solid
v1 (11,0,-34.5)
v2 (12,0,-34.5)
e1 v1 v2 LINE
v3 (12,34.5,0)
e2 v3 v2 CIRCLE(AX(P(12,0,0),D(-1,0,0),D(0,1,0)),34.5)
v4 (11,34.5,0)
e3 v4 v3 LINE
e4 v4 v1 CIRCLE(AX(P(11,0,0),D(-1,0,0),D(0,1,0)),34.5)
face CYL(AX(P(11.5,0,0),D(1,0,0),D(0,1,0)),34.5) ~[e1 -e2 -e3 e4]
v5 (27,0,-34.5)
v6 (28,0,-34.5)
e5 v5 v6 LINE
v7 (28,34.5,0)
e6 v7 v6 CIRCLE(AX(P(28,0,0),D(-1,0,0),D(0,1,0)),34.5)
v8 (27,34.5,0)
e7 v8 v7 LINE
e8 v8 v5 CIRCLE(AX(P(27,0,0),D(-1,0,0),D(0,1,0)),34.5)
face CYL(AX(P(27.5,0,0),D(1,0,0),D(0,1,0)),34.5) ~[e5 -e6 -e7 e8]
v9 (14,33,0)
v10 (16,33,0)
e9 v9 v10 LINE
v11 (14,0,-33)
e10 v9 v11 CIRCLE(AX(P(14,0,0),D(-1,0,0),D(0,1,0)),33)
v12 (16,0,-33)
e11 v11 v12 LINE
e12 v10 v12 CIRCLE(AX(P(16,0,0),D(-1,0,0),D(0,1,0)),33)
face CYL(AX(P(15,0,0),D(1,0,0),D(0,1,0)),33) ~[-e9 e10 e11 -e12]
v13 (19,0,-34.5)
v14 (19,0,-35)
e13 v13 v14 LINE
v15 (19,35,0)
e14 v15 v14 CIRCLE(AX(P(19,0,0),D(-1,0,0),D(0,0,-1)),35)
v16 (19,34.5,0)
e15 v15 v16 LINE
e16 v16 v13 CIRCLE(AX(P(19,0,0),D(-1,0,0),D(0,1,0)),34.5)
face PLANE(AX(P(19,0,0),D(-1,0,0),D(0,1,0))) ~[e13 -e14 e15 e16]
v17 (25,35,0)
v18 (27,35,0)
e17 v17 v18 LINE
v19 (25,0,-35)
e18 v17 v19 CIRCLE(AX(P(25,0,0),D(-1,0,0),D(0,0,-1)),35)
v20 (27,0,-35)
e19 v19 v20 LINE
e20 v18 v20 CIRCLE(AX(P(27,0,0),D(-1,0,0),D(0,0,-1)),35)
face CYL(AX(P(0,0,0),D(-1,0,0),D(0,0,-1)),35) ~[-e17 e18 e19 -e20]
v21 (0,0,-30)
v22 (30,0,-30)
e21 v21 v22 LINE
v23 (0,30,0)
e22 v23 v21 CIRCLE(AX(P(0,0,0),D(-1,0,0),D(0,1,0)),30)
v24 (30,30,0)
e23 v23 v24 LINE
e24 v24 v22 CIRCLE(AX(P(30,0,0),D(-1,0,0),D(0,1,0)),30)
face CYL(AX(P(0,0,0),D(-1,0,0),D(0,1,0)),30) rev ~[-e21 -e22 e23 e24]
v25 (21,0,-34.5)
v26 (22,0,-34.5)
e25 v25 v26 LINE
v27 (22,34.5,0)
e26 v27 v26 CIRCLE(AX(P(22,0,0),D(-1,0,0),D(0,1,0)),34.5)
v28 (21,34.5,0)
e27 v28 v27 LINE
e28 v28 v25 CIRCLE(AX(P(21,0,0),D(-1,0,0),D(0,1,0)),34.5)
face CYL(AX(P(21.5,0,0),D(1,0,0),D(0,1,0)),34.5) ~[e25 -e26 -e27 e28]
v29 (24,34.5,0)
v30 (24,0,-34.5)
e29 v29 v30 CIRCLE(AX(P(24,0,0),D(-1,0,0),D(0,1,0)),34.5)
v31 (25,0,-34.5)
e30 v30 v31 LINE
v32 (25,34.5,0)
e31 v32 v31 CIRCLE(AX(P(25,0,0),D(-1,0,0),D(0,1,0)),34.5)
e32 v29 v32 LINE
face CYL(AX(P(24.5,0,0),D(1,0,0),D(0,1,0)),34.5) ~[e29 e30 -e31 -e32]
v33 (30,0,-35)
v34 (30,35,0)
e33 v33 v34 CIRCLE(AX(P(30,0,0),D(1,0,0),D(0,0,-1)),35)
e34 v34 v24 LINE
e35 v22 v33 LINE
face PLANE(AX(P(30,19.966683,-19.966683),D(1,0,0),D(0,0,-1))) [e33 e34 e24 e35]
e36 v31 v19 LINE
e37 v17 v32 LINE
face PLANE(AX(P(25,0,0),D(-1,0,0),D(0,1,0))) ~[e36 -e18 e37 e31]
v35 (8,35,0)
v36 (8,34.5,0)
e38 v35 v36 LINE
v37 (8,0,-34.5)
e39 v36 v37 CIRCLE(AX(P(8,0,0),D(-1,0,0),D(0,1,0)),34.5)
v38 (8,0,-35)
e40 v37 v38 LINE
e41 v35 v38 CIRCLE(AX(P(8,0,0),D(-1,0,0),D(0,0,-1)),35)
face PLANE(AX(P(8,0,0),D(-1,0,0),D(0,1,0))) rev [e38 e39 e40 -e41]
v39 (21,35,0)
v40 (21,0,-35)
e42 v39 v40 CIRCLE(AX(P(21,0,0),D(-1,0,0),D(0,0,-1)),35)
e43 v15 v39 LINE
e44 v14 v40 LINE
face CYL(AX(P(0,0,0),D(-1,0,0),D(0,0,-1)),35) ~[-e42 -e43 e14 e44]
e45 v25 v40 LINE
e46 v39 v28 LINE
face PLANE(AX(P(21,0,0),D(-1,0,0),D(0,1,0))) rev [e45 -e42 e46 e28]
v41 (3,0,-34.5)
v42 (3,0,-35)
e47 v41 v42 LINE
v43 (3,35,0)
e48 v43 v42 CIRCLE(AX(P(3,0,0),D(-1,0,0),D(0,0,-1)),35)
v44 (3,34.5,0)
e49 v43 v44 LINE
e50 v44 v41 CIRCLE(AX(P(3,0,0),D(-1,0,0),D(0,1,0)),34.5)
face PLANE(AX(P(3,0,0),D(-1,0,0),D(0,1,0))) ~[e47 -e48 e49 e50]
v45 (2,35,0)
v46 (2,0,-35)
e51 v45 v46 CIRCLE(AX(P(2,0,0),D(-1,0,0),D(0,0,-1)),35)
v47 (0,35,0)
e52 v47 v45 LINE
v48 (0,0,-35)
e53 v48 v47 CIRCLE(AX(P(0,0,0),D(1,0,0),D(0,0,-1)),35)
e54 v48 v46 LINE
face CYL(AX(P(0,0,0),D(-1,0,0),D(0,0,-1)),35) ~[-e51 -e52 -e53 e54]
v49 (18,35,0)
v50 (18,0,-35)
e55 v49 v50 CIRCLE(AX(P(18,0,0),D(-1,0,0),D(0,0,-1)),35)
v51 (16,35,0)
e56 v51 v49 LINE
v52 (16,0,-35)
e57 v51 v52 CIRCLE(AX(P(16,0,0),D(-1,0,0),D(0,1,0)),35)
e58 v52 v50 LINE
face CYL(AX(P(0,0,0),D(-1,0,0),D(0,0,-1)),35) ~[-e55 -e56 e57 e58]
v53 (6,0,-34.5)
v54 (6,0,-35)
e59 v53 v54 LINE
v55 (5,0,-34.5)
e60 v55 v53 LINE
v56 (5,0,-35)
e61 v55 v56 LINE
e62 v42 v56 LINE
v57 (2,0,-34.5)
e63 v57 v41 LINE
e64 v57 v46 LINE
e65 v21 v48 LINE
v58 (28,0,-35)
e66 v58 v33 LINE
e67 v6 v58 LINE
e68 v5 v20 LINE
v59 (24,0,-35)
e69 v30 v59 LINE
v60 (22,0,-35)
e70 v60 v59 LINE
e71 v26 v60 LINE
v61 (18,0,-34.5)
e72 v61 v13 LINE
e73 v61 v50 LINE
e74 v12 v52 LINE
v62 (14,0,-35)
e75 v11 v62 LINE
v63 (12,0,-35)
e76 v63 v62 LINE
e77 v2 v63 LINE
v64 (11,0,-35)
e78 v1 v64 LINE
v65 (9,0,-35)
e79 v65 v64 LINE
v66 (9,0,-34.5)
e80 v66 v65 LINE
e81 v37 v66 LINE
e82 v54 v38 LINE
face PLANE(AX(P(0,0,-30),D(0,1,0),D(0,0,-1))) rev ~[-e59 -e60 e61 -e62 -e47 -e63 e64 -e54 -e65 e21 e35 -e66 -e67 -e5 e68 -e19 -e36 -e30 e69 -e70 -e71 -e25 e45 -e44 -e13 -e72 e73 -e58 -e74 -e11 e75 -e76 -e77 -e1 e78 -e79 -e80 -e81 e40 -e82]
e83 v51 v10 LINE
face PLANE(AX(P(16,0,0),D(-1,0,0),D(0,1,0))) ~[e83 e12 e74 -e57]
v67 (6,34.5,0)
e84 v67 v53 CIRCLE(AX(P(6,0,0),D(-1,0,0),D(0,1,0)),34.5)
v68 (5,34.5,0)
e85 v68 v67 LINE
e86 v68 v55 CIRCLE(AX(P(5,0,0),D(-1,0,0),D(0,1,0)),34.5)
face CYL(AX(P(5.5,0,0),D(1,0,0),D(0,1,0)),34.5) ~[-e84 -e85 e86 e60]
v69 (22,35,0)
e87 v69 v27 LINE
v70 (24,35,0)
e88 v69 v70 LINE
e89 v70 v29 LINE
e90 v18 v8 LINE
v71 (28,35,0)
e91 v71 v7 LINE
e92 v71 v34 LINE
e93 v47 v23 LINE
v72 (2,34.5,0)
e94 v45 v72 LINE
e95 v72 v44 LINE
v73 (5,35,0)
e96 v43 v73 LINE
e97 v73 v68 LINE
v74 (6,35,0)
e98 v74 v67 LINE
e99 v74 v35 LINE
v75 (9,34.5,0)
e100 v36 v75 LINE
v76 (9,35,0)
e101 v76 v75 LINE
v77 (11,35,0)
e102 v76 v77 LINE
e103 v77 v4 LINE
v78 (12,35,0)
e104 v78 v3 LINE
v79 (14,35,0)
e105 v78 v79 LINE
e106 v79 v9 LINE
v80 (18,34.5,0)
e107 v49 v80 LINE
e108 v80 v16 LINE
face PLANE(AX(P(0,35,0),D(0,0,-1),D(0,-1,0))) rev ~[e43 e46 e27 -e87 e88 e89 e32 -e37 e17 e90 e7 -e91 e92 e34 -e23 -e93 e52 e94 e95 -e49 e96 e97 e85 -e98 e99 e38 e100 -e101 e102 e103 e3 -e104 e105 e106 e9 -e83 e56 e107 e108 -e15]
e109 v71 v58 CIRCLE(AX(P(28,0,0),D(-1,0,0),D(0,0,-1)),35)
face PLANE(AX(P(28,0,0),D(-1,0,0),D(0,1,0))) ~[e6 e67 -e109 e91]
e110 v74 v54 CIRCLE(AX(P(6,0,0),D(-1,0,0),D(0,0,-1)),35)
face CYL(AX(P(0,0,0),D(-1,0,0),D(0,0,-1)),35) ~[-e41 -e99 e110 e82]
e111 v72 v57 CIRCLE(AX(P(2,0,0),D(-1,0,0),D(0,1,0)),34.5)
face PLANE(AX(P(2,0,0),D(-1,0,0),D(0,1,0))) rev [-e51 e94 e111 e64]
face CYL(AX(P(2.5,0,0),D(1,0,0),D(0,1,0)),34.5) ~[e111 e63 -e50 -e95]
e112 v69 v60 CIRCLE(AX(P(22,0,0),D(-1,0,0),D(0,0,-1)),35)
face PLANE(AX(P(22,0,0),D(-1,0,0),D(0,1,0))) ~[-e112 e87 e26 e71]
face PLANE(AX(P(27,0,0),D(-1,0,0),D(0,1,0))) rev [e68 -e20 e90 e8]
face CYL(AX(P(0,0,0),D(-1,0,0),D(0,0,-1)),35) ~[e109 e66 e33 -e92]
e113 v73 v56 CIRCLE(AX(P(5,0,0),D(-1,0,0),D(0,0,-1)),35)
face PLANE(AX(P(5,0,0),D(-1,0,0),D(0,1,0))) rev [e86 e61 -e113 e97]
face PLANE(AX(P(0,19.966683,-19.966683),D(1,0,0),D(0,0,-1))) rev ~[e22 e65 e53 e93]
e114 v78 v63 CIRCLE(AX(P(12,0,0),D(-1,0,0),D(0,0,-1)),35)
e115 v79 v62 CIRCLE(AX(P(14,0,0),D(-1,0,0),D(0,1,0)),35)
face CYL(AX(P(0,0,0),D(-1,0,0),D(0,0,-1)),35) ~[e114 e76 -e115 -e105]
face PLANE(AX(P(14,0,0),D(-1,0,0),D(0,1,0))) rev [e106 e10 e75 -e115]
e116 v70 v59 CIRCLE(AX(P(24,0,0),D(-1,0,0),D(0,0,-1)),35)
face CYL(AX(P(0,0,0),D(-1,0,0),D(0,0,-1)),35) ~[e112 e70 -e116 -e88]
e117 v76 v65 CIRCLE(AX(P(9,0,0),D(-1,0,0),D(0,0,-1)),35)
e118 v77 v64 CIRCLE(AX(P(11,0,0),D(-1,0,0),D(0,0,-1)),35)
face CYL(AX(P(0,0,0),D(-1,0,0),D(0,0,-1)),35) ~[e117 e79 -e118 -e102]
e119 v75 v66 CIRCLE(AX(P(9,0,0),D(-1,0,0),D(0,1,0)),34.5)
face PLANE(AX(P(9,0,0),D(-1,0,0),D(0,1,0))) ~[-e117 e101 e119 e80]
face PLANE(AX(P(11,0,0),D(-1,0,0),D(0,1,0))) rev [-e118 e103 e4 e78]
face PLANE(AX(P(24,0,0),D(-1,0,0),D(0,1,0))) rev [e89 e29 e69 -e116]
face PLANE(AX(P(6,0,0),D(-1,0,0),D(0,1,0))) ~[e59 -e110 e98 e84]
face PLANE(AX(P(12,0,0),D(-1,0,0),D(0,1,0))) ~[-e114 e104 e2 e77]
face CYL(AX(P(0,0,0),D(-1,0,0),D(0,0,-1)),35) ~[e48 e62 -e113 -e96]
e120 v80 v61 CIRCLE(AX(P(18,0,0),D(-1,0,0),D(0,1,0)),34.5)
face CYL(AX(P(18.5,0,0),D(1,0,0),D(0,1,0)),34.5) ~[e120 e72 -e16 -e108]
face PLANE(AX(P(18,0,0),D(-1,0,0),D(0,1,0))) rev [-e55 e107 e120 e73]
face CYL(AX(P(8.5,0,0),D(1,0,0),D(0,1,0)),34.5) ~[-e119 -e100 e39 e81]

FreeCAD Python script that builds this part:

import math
import FreeCAD as App
import Part
import Sketcher

doc = App.newDocument("Part")
params = doc.addObject("Spreadsheet::Sheet", "Params")
for row, (alias, value) in enumerate([
    ("sketch1_radius", "30 mm"),
    ("sketch1_radius2", "35 mm"),
    ("pad1_length", "30 mm"),
    ("sketch2_width", "1 mm"),
    ("sketch2_width2", "2 mm"),
    ("groove_angle", "360 deg"),
], start=1):
    params.set(f"A{row}", alias)
    params.set(f"B{row}", "=" + value)
    params.setAlias(f"B{row}", alias)

body = doc.addObject("PartDesign::Body", "Body")

# Sketch on YZ plane
sketch1 = body.newObject("Sketcher::SketchObject", "Sketch")
sketch1.AttachmentSupport = (doc.getObject("YZ_Plane"), [""])
sketch1.MapMode = "FlatFace"
sketch1.addGeometry([
    Part.LineSegment(App.Vector(35, 0, 0), App.Vector(30, 0, 0)),
    Part.ArcOfCircle(Part.Circle(App.Vector(0, 0, 0), App.Vector(0, 0, 1), 30), math.radians(-90), math.radians(0)),
    Part.LineSegment(App.Vector(0, -30, 0), App.Vector(0, -35, 0)),
    Part.ArcOfCircle(Part.Circle(App.Vector(0, 0, 0), App.Vector(0, 0, 1), 35), math.radians(-90), math.radians(0)),
], False)
sketch1.addConstraint([
    Sketcher.Constraint("Coincident", 0, 2, 1, 2),
    Sketcher.Constraint("Coincident", 1, 1, 2, 1),
    Sketcher.Constraint("Coincident", 2, 2, 3, 1),
    Sketcher.Constraint("Coincident", 3, 2, 0, 1),
    Sketcher.Constraint("Horizontal", 0),
    Sketcher.Constraint("Vertical", 2),
    Sketcher.Constraint("Coincident", 1, 3, -1, 1),
    Sketcher.Constraint("Coincident", 3, 3, -1, 1),
    Sketcher.Constraint("PointOnObject", 0, 2, -1),
    Sketcher.Constraint("PointOnObject", 1, 1, -2),
    Sketcher.Constraint("Radius", 1, 30.0),
    Sketcher.Constraint("Radius", 3, 35.0),
])
sketch1.setExpression("Constraints[10]", "Params.sketch1_radius")
sketch1.setExpression("Constraints[11]", "Params.sketch1_radius2")
pad1 = body.newObject("PartDesign::Pad", "Pad")
pad1.Profile = sketch1
pad1.setExpression("Length", "Params.pad1_length")

# Sketch on XY plane
sketch2 = body.newObject("Sketcher::SketchObject", "Sketch001")
sketch2.AttachmentSupport = (doc.getObject("XY_Plane"), [""])
sketch2.MapMode = "FlatFace"
sketch2.addGeometry([
    Part.LineSegment(App.Vector(2, 35.5, 0), App.Vector(2, 34.5, 0)),  # 0
    Part.LineSegment(App.Vector(2, 34.5, 0), App.Vector(3, 34.5, 0)),  # 1
    Part.LineSegment(App.Vector(3, 34.5, 0), App.Vector(3, 35.5, 0)),  # 2
    Part.LineSegment(App.Vector(3, 35.5, 0), App.Vector(2, 35.5, 0)),  # 3
    Part.LineSegment(App.Vector(5, 35.5, 0), App.Vector(5, 34.5, 0)),  # 4
    Part.LineSegment(App.Vector(5, 34.5, 0), App.Vector(6, 34.5, 0)),  # 5
    Part.LineSegment(App.Vector(6, 34.5, 0), App.Vector(6, 35.5, 0)),  # 6
    Part.LineSegment(App.Vector(6, 35.5, 0), App.Vector(5, 35.5, 0)),  # 7
    Part.LineSegment(App.Vector(8, 35.5, 0), App.Vector(8, 34.5, 0)),  # 8
    Part.LineSegment(App.Vector(8, 34.5, 0), App.Vector(9, 34.5, 0)),  # 9
    Part.LineSegment(App.Vector(9, 34.5, 0), App.Vector(9, 35.5, 0)),  # 10
    Part.LineSegment(App.Vector(9, 35.5, 0), App.Vector(8, 35.5, 0)),  # 11
    Part.LineSegment(App.Vector(11, 35.5, 0), App.Vector(11, 34.5, 0)),  # 12
    Part.LineSegment(App.Vector(11, 34.5, 0), App.Vector(12, 34.5, 0)),  # 13
    Part.LineSegment(App.Vector(12, 34.5, 0), App.Vector(12, 35.5, 0)),  # 14
    Part.LineSegment(App.Vector(12, 35.5, 0), App.Vector(11, 35.5, 0)),  # 15
    Part.LineSegment(App.Vector(18, 35.5, 0), App.Vector(18, 34.5, 0)),  # 16
    Part.LineSegment(App.Vector(18, 34.5, 0), App.Vector(19, 34.5, 0)),  # 17
    Part.LineSegment(App.Vector(19, 34.5, 0), App.Vector(19, 35.5, 0)),  # 18
    Part.LineSegment(App.Vector(19, 35.5, 0), App.Vector(18, 35.5, 0)),  # 19
    Part.LineSegment(App.Vector(21, 35.5, 0), App.Vector(21, 34.5, 0)),  # 20
    Part.LineSegment(App.Vector(21, 34.5, 0), App.Vector(22, 34.5, 0)),  # 21
    Part.LineSegment(App.Vector(22, 34.5, 0), App.Vector(22, 35.5, 0)),  # 22
    Part.LineSegment(App.Vector(22, 35.5, 0), App.Vector(21, 35.5, 0)),  # 23
    Part.LineSegment(App.Vector(24, 35.5, 0), App.Vector(24, 34.5, 0)),  # 24
    Part.LineSegment(App.Vector(24, 34.5, 0), App.Vector(25, 34.5, 0)),  # 25
    Part.LineSegment(App.Vector(25, 34.5, 0), App.Vector(25, 35.5, 0)),  # 26
    Part.LineSegment(App.Vector(25, 35.5, 0), App.Vector(24, 35.5, 0)),  # 27
    Part.LineSegment(App.Vector(27, 35.5, 0), App.Vector(27, 34.5, 0)),  # 28
    Part.LineSegment(App.Vector(27, 34.5, 0), App.Vector(28, 34.5, 0)),  # 29
    Part.LineSegment(App.Vector(28, 34.5, 0), App.Vector(28, 35.5, 0)),  # 30
    Part.LineSegment(App.Vector(28, 35.5, 0), App.Vector(27, 35.5, 0)),  # 31
    Part.LineSegment(App.Vector(14, 35, 0), App.Vector(14, 33, 0)),  # 32
    Part.LineSegment(App.Vector(14, 33, 0), App.Vector(16, 33, 0)),  # 33
    Part.LineSegment(App.Vector(16, 33, 0), App.Vector(16, 35, 0)),  # 34
    Part.LineSegment(App.Vector(16, 35, 0), App.Vector(14, 35, 0)),  # 35
], False)
sketch2.addConstraint([
    Sketcher.Constraint("Coincident", 0, 2, 1, 1),
    Sketcher.Constraint("Coincident", 1, 2, 2, 1),
    Sketcher.Constraint("Coincident", 2, 2, 3, 1),
    Sketcher.Constraint("Coincident", 3, 2, 0, 1),
    Sketcher.Constraint("Coincident", 4, 2, 5, 1),
    Sketcher.Constraint("Coincident", 5, 2, 6, 1),
    Sketcher.Constraint("Coincident", 6, 2, 7, 1),
    Sketcher.Constraint("Coincident", 7, 2, 4, 1),
    Sketcher.Constraint("Coincident", 8, 2, 9, 1),
    Sketcher.Constraint("Coincident", 9, 2, 10, 1),
    Sketcher.Constraint("Coincident", 10, 2, 11, 1),
    Sketcher.Constraint("Coincident", 11, 2, 8, 1),
    Sketcher.Constraint("Coincident", 12, 2, 13, 1),
    Sketcher.Constraint("Coincident", 13, 2, 14, 1),
    Sketcher.Constraint("Coincident", 14, 2, 15, 1),
    Sketcher.Constraint("Coincident", 15, 2, 12, 1),
    Sketcher.Constraint("Coincident", 16, 2, 17, 1),
    Sketcher.Constraint("Coincident", 17, 2, 18, 1),
    Sketcher.Constraint("Coincident", 18, 2, 19, 1),
    Sketcher.Constraint("Coincident", 19, 2, 16, 1),
    Sketcher.Constraint("Coincident", 20, 2, 21, 1),
    Sketcher.Constraint("Coincident", 21, 2, 22, 1),
    Sketcher.Constraint("Coincident", 22, 2, 23, 1),
    Sketcher.Constraint("Coincident", 23, 2, 20, 1),
    Sketcher.Constraint("Coincident", 24, 2, 25, 1),
    Sketcher.Constraint("Coincident", 25, 2, 26, 1),
    Sketcher.Constraint("Coincident", 26, 2, 27, 1),
    Sketcher.Constraint("Coincident", 27, 2, 24, 1),
    Sketcher.Constraint("Coincident", 28, 2, 29, 1),
    Sketcher.Constraint("Coincident", 29, 2, 30, 1),
    Sketcher.Constraint("Coincident", 30, 2, 31, 1),
    Sketcher.Constraint("Coincident", 31, 2, 28, 1),
    Sketcher.Constraint("Coincident", 32, 2, 33, 1),
    Sketcher.Constraint("Coincident", 33, 2, 34, 1),
    Sketcher.Constraint("Coincident", 34, 2, 35, 1),
    Sketcher.Constraint("Coincident", 35, 2, 32, 1),
    Sketcher.Constraint("Vertical", 0),
    Sketcher.Constraint("Horizontal", 1),
    Sketcher.Constraint("Vertical", 2),
    Sketcher.Constraint("Horizontal", 3),
    Sketcher.Constraint("Vertical", 4),
    Sketcher.Constraint("Horizontal", 5),
    Sketcher.Constraint("Vertical", 6),
    Sketcher.Constraint("Horizontal", 7),
    Sketcher.Constraint("Vertical", 8),
    Sketcher.Constraint("Horizontal", 9),
    Sketcher.Constraint("Vertical", 10),
    Sketcher.Constraint("Horizontal", 11),
    Sketcher.Constraint("Vertical", 12),
    Sketcher.Constraint("Horizontal", 13),
    Sketcher.Constraint("Vertical", 14),
    Sketcher.Constraint("Horizontal", 15),
    Sketcher.Constraint("Vertical", 16),
    Sketcher.Constraint("Horizontal", 17),
    Sketcher.Constraint("Vertical", 18),
    Sketcher.Constraint("Horizontal", 19),
    Sketcher.Constraint("Vertical", 20),
    Sketcher.Constraint("Horizontal", 21),
    Sketcher.Constraint("Vertical", 22),
    Sketcher.Constraint("Horizontal", 23),
    Sketcher.Constraint("Vertical", 24),
    Sketcher.Constraint("Horizontal", 25),
    Sketcher.Constraint("Vertical", 26),
    Sketcher.Constraint("Horizontal", 27),
    Sketcher.Constraint("Vertical", 28),
    Sketcher.Constraint("Horizontal", 29),
    Sketcher.Constraint("Vertical", 30),
    Sketcher.Constraint("Horizontal", 31),
    Sketcher.Constraint("Vertical", 32),
    Sketcher.Constraint("Horizontal", 33),
    Sketcher.Constraint("Vertical", 34),
    Sketcher.Constraint("Horizontal", 35),
    Sketcher.Constraint("Horizontal", 1, 2, 4, 2),
    Sketcher.Constraint("Horizontal", 3, 2, 6, 2),
    Sketcher.Constraint("Horizontal", 5, 2, 8, 2),
    Sketcher.Constraint("Horizontal", 7, 2, 10, 2),
    Sketcher.Constraint("Horizontal", 9, 2, 12, 2),
    Sketcher.Constraint("Horizontal", 11, 2, 14, 2),
    Sketcher.Constraint("Horizontal", 13, 2, 16, 2),
    Sketcher.Constraint("Horizontal", 15, 2, 18, 2),
    Sketcher.Constraint("Horizontal", 17, 2, 20, 2),
    Sketcher.Constraint("Horizontal", 19, 2, 22, 2),
    Sketcher.Constraint("Horizontal", 21, 2, 24, 2),
    Sketcher.Constraint("Horizontal", 23, 2, 26, 2),
    Sketcher.Constraint("Horizontal", 25, 2, 28, 2),
    Sketcher.Constraint("Horizontal", 27, 2, 30, 2),
    Sketcher.Constraint("Equal", 3, 5),
    Sketcher.Constraint("Equal", 7, 9),
    Sketcher.Constraint("Equal", 11, 13),
    Sketcher.Constraint("Equal", 15, 17),
    Sketcher.Constraint("Equal", 19, 21),
    Sketcher.Constraint("Equal", 23, 25),
    Sketcher.Constraint("Equal", 27, 29),
    Sketcher.Constraint("Equal", 31, 0),
    Sketcher.Constraint("Equal", 35, 32),
    Sketcher.Constraint("DistanceX", 1, 1, 1, 2, 1.0),
    Sketcher.Constraint("DistanceX", 33, 1, 33, 2, 2.0),
    Sketcher.Constraint("DistanceX", -1, 1, 0, 2, 2.0),
    Sketcher.Constraint("DistanceX", -1, 1, 4, 2, 5.0),
    Sketcher.Constraint("DistanceX", -1, 1, 8, 2, 8.0),
    Sketcher.Constraint("DistanceX", -1, 1, 12, 2, 11.0),
    Sketcher.Constraint("DistanceX", -1, 1, 16, 2, 18.0),
    Sketcher.Constraint("DistanceX", -1, 1, 20, 2, 21.0),
    Sketcher.Constraint("DistanceX", -1, 1, 24, 2, 24.0),
    Sketcher.Constraint("DistanceX", -1, 1, 28, 2, 27.0),
    Sketcher.Constraint("DistanceX", -1, 1, 32, 2, 14.0),
    Sketcher.Constraint("DistanceY", -1, 1, 32, 2, 33.0),
    Sketcher.Constraint("DistanceY", -1, 1, 0, 2, 34.5),
])
sketch2.setExpression("Constraints[95]", "Params.sketch2_width")
sketch2.setExpression("Constraints[96]", "Params.sketch2_width2")
groove = body.newObject("PartDesign::Groove", "Groove")
groove.Profile = sketch2
groove.ReferenceAxis = (sketch2, ["H_Axis"])
groove.setExpression("Angle", "Params.groove_angle")

doc.recompute()
